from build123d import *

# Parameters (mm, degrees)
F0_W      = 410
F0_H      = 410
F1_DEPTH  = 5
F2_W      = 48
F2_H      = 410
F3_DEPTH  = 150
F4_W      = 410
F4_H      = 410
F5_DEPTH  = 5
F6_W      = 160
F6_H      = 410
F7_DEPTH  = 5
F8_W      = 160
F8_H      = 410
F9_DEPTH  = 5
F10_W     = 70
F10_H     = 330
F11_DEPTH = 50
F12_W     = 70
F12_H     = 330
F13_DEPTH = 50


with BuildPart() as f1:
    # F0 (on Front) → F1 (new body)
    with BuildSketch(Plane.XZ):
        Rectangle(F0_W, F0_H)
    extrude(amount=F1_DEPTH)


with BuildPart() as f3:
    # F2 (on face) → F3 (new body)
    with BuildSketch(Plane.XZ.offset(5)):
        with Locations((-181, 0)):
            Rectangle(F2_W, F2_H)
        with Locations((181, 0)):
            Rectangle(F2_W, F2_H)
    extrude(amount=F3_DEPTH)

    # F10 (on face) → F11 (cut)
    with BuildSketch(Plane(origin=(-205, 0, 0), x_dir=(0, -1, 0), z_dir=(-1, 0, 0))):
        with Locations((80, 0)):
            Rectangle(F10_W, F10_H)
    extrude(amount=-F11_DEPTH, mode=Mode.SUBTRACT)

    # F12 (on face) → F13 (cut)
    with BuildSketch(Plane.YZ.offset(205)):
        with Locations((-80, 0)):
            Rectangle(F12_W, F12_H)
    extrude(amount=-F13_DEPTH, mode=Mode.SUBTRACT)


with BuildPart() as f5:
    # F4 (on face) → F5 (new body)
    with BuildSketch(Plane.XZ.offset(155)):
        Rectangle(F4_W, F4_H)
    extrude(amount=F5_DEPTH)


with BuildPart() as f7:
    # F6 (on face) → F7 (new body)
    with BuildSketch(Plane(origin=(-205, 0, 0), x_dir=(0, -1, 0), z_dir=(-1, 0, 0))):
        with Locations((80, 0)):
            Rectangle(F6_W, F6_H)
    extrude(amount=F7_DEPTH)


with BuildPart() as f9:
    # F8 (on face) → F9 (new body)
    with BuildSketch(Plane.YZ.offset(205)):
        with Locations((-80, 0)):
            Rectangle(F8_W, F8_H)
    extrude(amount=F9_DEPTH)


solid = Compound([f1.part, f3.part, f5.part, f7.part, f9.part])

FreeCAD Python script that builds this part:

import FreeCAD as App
import Part
import Sketcher
Q = App.Units.Quantity


def add_polygon(sketch, points):
    """Adds a closed chain of lines whose ends are joined by coincident constraints."""
    first, n = sketch.GeometryCount, len(points)
    for a, b in zip(points, points[1:] + points[:1]):
        sketch.addGeometry(Part.LineSegment(App.Vector(*a, 0), App.Vector(*b, 0)), False)
    for i in range(n):
        sketch.addConstraint(Sketcher.Constraint("Coincident", first + i, 2, first + (i + 1) % n, 1))

doc = App.newDocument("Part")
params = doc.addObject("Spreadsheet::Sheet", "Params")
for row, (alias, value) in enumerate([
    ("sketch1_width", "410 mm"),
    ("pad1_length", "5 mm"),
    ("sketch2_width", "48 mm"),
    ("sketch2_height", "410 mm"),
    ("pad2_length", "150 mm"),
    ("sketch3_width", "70 mm"),
    ("sketch3_height", "330 mm"),
    ("pocket1_length", "50 mm"),
    ("sketch4_width", "70 mm"),
    ("sketch4_height", "330 mm"),
    ("pocket2_length", "50 mm"),
    ("sketch5_width", "410 mm"),
    ("pad3_length", "5 mm"),
    ("sketch6_width", "160 mm"),
    ("sketch6_height", "410 mm"),
    ("pad4_length", "5 mm"),
    ("sketch7_width", "160 mm"),
    ("sketch7_height", "410 mm"),
    ("pad5_length", "5 mm"),
], start=1):
    params.set(f"A{row}", alias)
    params.set(f"B{row}", "=" + value)
    params.setAlias(f"B{row}", alias)

body = doc.addObject("PartDesign::Body", "Body")

sketch1 = body.newObject("Sketcher::SketchObject", "Sketch")
sketch1.AttachmentSupport = (doc.getObject("XZ_Plane"), [""])
sketch1.MapMode = "FlatFace"
add_polygon(sketch1, [(-205, 205), (-205, -205), (205, -205), (205, 205)])
sketch1.addConstraint([
    Sketcher.Constraint("Vertical", 0),
    Sketcher.Constraint("Horizontal", 1),
    Sketcher.Constraint("Vertical", 2),
    Sketcher.Constraint("Horizontal", 3),
    Sketcher.Constraint("Symmetric", 0, 2, 2, 2, -1, 1),
    Sketcher.Constraint("Equal", 3, 0),
    Sketcher.Constraint("DistanceX", 1, 1, 1, 2, Q("410 mm")),
])
sketch1.setExpression("Constraints[10]", "Params.sketch1_width")
pad1 = body.newObject("PartDesign::Pad", "Pad")
pad1.Profile = sketch1
pad1.setExpression("Length", "Params.pad1_length")
body2 = doc.addObject("PartDesign::Body", "Body001")
body2.AllowCompound = True

sketch2 = body2.newObject("Sketcher::SketchObject", "Sketch001")
sketch2.AttachmentSupport = (doc.getObject("XZ_Plane001"), [""])
sketch2.MapMode = "FlatFace"
sketch2.AttachmentOffset = App.Placement(App.Vector(0, 0, 5), App.Rotation())
add_polygon(sketch2, [(-205, 205), (-205, -205), (-157, -205), (-157, 205)])
add_polygon(sketch2, [(157, 205), (157, -205), (205, -205), (205, 205)])
sketch2.addConstraint([
    Sketcher.Constraint("Vertical", 0),
    Sketcher.Constraint("Horizontal", 1),
    Sketcher.Constraint("Vertical", 2),
    Sketcher.Constraint("Horizontal", 3),
    Sketcher.Constraint("Vertical", 4),
    Sketcher.Constraint("Horizontal", 5),
    Sketcher.Constraint("Vertical", 6),
    Sketcher.Constraint("Horizontal", 7),
    Sketcher.Constraint("Symmetric", 2, 2, 4, 2, -1, 1),
    Sketcher.Constraint("Symmetric", 0, 2, 6, 2, -1, 1),
    Sketcher.Constraint("Horizontal", 1, 2, 4, 2),
    Sketcher.Constraint("DistanceX", 1, 1, 1, 2, Q("48 mm")),
    Sketcher.Constraint("DistanceY", 0, 2, 0, 1, Q("410 mm")),
    Sketcher.Constraint("DistanceX", 0, 2, -1, 1, Q("205 mm")),
])
sketch2.setExpression("Constraints[19]", "Params.sketch2_width")
sketch2.setExpression("Constraints[20]", "Params.sketch2_height")
pad2 = body2.newObject("PartDesign::Pad", "Pad001")
pad2.Profile = sketch2
pad2.setExpression("Length", "Params.pad2_length")

sketch3 = body2.newObject("Sketcher::SketchObject", "Sketch002")
sketch3.AttachmentSupport = (doc.getObject("YZ_Plane001"), [""])
sketch3.MapMode = "FlatFace"
sketch3.AttachmentOffset = App.Placement(App.Vector(0, 0, -205), App.Rotation())
add_polygon(sketch3, [(-45, 165), (-45, -165), (-115, -165), (-115, 165)])
sketch3.addConstraint([
    Sketcher.Constraint("Vertical", 0),
    Sketcher.Constraint("Horizontal", 1),
    Sketcher.Constraint("Vertical", 2),
    Sketcher.Constraint("Horizontal", 3),
    Sketcher.Constraint("DistanceX", 1, 2, 1, 1, Q("70 mm")),
    Sketcher.Constraint("DistanceY", 0, 2, 0, 1, Q("330 mm")),
    Sketcher.Constraint("DistanceX", 0, 2, -1, 1, Q("45 mm")),
    Sketcher.Constraint("DistanceY", 0, 2, -1, 1, Q("165 mm")),
])
sketch3.setExpression("Constraints[8]", "Params.sketch3_width")
sketch3.setExpression("Constraints[9]", "Params.sketch3_height")
pocket1 = body2.newObject("PartDesign::Pocket", "Pocket")
pocket1.Profile = sketch3
pocket1.setExpression("Length", "Params.pocket1_length")
pocket1.Reversed = True

sketch4 = body2.newObject("Sketcher::SketchObject", "Sketch003")
sketch4.AttachmentSupport = (doc.getObject("YZ_Plane001"), [""])
sketch4.MapMode = "FlatFace"
sketch4.AttachmentOffset = App.Placement(App.Vector(0, 0, 205), App.Rotation())
add_polygon(sketch4, [(-115, 165), (-115, -165), (-45, -165), (-45, 165)])
sketch4.addConstraint([
    Sketcher.Constraint("Vertical", 0),
    Sketcher.Constraint("Horizontal", 1),
    Sketcher.Constraint("Vertical", 2),
    Sketcher.Constraint("Horizontal", 3),
    Sketcher.Constraint("DistanceX", 1, 1, 1, 2, Q("70 mm")),
    Sketcher.Constraint("DistanceY", 0, 2, 0, 1, Q("330 mm")),
    Sketcher.Constraint("DistanceX", 0, 2, -1, 1, Q("115 mm")),
    Sketcher.Constraint("DistanceY", 0, 2, -1, 1, Q("165 mm")),
])
sketch4.setExpression("Constraints[8]", "Params.sketch4_width")
sketch4.setExpression("Constraints[9]", "Params.sketch4_height")
pocket2 = body2.newObject("PartDesign::Pocket", "Pocket001")
pocket2.Profile = sketch4
pocket2.setExpression("Length", "Params.pocket2_length")
body3 = doc.addObject("PartDesign::Body", "Body002")

sketch5 = body3.newObject("Sketcher::SketchObject", "Sketch004")
sketch5.AttachmentSupport = (doc.getObject("XZ_Plane002"), [""])
sketch5.MapMode = "FlatFace"
sketch5.AttachmentOffset = App.Placement(App.Vector(0, 0, 155), App.Rotation())
add_polygon(sketch5, [(-205, 205), (-205, -205), (205, -205), (205, 205)])
sketch5.addConstraint([
    Sketcher.Constraint("Vertical", 0),
    Sketcher.Constraint("Horizontal", 1),
    Sketcher.Constraint("Vertical", 2),
    Sketcher.Constraint("Horizontal", 3),
    Sketcher.Constraint("Symmetric", 0, 2, 2, 2, -1, 1),
    Sketcher.Constraint("Equal", 3, 0),
    Sketcher.Constraint("DistanceX", 1, 1, 1, 2, Q("410 mm")),
])
sketch5.setExpression("Constraints[10]", "Params.sketch5_width")
pad3 = body3.newObject("PartDesign::Pad", "Pad002")
pad3.Profile = sketch5
pad3.setExpression("Length", "Params.pad3_length")
body4 = doc.addObject("PartDesign::Body", "Body003")

sketch6 = body4.newObject("Sketcher::SketchObject", "Sketch005")
sketch6.AttachmentSupport = (doc.getObject("YZ_Plane003"), [""])
sketch6.MapMode = "FlatFace"
sketch6.AttachmentOffset = App.Placement(App.Vector(0, 0, -205), App.Rotation())
add_polygon(sketch6, [(0, 205), (0, -205), (-160, -205), (-160, 205)])
sketch6.addConstraint([
    Sketcher.Constraint("Vertical", 0),
    Sketcher.Constraint("Horizontal", 1),
    Sketcher.Constraint("Vertical", 2),
    Sketcher.Constraint("Horizontal", 3),
    Sketcher.Constraint("Symmetric", 0, 2, 3, 2, -1, 1),
    Sketcher.Constraint("DistanceX", 1, 2, 1, 1, Q("160 mm")),
    Sketcher.Constraint("DistanceY", 0, 2, 0, 1, Q("410 mm")),
])
sketch6.setExpression("Constraints[9]", "Params.sketch6_width")
sketch6.setExpression("Constraints[10]", "Params.sketch6_height")
pad4 = body4.newObject("PartDesign::Pad", "Pad003")
pad4.Profile = sketch6
pad4.setExpression("Length", "Params.pad4_length")
pad4.Reversed = True
body5 = doc.addObject("PartDesign::Body", "Body004")

sketch7 = body5.newObject("Sketcher::SketchObject", "Sketch006")
sketch7.AttachmentSupport = (doc.getObject("YZ_Plane004"), [""])
sketch7.MapMode = "FlatFace"
sketch7.AttachmentOffset = App.Placement(App.Vector(0, 0, 205), App.Rotation())
add_polygon(sketch7, [(-160, 205), (-160, -205), (0, -205), (0, 205)])
sketch7.addConstraint([
    Sketcher.Constraint("Vertical", 0),
    Sketcher.Constraint("Horizontal", 1),
    Sketcher.Constraint("Vertical", 2),
    Sketcher.Constraint("Horizontal", 3),
    Sketcher.Constraint("Symmetric", 1, 2, 2, 2, -1, 1),
    Sketcher.Constraint("DistanceX", 1, 1, 1, 2, Q("160 mm")),
    Sketcher.Constraint("DistanceY", 0, 2, 0, 1, Q("410 mm")),
])
sketch7.setExpression("Constraints[9]", "Params.sketch7_width")
sketch7.setExpression("Constraints[10]", "Params.sketch7_height")
pad5 = body5.newObject("PartDesign::Pad", "Pad004")
pad5.Profile = sketch7
pad5.setExpression("Length", "Params.pad5_length")

doc.recompute()
